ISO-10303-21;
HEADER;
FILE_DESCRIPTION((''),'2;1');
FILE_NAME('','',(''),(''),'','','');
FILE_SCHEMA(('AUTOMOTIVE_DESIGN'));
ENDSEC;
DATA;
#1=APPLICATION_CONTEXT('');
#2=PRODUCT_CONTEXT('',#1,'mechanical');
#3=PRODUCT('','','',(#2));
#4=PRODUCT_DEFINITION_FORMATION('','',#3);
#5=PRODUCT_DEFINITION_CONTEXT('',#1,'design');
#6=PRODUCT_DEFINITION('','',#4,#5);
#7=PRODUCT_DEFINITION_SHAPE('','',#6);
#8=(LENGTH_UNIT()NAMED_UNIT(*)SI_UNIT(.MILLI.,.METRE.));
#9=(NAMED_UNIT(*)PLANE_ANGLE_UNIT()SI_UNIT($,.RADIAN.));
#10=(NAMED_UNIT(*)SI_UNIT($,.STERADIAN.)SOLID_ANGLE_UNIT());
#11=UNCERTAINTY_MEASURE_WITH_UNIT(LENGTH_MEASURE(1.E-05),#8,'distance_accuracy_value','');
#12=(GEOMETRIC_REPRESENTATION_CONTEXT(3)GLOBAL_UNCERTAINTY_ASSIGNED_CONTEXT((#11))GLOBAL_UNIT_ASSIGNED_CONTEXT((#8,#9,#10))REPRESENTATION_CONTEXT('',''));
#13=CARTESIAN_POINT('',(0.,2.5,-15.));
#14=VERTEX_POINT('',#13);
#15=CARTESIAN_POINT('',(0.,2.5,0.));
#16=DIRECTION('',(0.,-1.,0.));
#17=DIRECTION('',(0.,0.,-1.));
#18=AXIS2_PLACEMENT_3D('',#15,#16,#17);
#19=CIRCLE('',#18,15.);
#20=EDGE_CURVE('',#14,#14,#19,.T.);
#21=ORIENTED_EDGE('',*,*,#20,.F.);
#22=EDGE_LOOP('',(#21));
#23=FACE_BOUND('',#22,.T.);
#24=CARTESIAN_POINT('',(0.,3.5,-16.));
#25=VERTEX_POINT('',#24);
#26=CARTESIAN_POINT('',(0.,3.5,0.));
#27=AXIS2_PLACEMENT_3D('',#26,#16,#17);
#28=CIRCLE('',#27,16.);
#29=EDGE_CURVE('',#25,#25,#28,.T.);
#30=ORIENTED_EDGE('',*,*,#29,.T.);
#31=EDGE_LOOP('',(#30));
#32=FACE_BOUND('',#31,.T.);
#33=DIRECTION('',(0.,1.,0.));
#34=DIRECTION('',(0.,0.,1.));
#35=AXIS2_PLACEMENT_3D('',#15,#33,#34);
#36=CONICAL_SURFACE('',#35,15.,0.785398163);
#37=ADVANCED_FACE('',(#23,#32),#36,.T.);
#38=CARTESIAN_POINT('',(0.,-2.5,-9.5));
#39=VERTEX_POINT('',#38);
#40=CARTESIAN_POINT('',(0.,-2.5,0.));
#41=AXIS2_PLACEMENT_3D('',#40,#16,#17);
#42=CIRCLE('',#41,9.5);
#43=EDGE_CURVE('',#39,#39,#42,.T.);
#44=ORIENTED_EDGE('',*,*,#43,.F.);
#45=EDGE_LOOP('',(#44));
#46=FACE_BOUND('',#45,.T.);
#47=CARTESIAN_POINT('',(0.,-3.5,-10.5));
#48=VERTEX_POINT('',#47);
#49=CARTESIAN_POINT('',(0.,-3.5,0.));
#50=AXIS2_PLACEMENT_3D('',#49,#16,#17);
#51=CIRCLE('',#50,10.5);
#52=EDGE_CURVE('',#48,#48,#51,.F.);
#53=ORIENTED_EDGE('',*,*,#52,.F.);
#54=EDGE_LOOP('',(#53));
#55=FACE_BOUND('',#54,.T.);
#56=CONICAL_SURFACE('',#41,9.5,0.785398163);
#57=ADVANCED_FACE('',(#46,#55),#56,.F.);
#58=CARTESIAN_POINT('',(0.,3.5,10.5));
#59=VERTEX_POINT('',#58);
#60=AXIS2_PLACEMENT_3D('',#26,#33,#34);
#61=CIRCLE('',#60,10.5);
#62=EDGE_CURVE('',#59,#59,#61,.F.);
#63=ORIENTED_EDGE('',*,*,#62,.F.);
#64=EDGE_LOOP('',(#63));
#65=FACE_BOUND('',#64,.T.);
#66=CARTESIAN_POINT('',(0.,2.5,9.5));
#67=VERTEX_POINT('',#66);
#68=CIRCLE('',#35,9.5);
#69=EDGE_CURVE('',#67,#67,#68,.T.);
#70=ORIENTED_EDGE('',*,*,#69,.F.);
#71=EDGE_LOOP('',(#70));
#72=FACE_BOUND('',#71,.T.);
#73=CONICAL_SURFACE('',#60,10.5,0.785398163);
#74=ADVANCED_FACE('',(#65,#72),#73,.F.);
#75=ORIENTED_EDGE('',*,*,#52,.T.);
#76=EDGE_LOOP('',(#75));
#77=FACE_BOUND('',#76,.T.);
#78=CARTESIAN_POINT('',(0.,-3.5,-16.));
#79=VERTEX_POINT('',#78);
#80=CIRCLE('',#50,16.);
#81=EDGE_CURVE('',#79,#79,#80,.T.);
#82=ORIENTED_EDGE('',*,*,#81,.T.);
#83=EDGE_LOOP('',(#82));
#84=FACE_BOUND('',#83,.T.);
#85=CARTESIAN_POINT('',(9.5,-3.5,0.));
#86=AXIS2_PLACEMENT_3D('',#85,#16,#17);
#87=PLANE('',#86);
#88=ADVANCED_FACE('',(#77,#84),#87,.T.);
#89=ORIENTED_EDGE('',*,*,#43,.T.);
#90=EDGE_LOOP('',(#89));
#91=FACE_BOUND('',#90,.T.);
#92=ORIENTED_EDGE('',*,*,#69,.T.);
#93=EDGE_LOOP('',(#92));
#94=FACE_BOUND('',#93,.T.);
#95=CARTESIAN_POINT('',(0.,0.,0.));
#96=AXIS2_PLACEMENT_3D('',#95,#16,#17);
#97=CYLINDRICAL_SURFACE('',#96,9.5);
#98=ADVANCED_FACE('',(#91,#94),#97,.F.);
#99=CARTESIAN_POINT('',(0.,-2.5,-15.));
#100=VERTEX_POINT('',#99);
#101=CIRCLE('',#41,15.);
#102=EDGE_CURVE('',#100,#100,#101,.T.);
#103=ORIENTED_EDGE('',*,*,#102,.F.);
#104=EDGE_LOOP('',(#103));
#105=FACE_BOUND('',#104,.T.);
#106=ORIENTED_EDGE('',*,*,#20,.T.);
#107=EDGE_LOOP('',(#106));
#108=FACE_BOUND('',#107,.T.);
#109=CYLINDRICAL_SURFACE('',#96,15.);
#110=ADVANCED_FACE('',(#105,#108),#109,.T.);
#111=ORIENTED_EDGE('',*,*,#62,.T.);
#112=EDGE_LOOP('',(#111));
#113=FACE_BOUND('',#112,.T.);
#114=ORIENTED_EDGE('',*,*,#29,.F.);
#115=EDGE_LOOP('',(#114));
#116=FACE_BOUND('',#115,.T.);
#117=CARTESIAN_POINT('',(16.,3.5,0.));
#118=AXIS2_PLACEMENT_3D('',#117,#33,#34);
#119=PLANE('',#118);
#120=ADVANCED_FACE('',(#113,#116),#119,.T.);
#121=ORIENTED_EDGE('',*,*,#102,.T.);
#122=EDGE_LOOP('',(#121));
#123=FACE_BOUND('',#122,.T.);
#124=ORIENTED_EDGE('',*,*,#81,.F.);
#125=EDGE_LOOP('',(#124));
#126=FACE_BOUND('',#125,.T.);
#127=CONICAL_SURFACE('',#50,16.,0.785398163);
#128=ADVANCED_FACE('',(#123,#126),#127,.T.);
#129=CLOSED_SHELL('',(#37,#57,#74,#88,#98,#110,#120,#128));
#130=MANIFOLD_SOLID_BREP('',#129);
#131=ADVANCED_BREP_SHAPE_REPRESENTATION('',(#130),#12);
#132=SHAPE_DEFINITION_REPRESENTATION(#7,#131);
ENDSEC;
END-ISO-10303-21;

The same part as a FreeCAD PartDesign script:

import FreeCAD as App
import Part
import Sketcher


def edges_at(feature, points):
    """Names of the edges that pass closest to the given points."""
    edges = feature.Shape.Edges
    near = lambda p: min(range(len(edges)), key=lambda i: edges[i].distToShape(Part.Vertex(*p))[0])
    return sorted({f"Edge{near(p) + 1}" for p in points})


def add_polygon(sketch, points):
    """Adds a closed chain of lines whose ends are joined by coincident constraints."""
    first, n = sketch.GeometryCount, len(points)
    for a, b in zip(points, points[1:] + points[:1]):
        sketch.addGeometry(Part.LineSegment(App.Vector(*a, 0), App.Vector(*b, 0)), False)
    for i in range(n):
        sketch.addConstraint(Sketcher.Constraint("Coincident", first + i, 2, first + (i + 1) % n, 1))

doc = App.newDocument("Part")
body = doc.addObject("PartDesign::Body", "Body")

# Sketch on XY plane
sketch1 = body.newObject("Sketcher::SketchObject", "Sketch")
sketch1.AttachmentSupport = (doc.getObject("XY_Plane"), [""])
sketch1.MapMode = "FlatFace"
add_polygon(sketch1, [(9.5, 3.5), (9.5, -3.5), (16, -3.5), (15, -2.5), (15, 2.5), (16, 3.5)])  # lines 0-5
sketch1.addConstraint([
    Sketcher.Constraint("Vertical", 0),
    Sketcher.Constraint("Horizontal", 1),
    Sketcher.Constraint("Vertical", 3),
    Sketcher.Constraint("Horizontal", 5),
    Sketcher.Constraint("Symmetric", 1, 2, 4, 2, -1),
    Sketcher.Constraint("Perpendicular", 2, 4),
    Sketcher.Constraint("Equal", 2, 4),
    Sketcher.Constraint("DistanceY", 0, 2, 0, 1, 7.0),
    Sketcher.Constraint("DistanceY", 3, 1, 3, 2, 5.0),
    Sketcher.Constraint("DistanceX", 1, 1, 1, 2, 6.5),
    Sketcher.Constraint("DistanceX", -1, 1, 1, 2, 16.0),
])
revolution = body.newObject("PartDesign::Revolution", "Revolution")
revolution.Profile = sketch1
revolution.ReferenceAxis = (sketch1, ["V_Axis"])
revolution.Angle = 360
doc.recompute()

chamfer = body.newObject("PartDesign::Chamfer", "Chamfer")
chamfer.Base = (revolution, edges_at(revolution, [(-9.5, -3.5, 0), (-9.5, 3.5, 0)]))
chamfer.Size = 1

doc.recompute()
